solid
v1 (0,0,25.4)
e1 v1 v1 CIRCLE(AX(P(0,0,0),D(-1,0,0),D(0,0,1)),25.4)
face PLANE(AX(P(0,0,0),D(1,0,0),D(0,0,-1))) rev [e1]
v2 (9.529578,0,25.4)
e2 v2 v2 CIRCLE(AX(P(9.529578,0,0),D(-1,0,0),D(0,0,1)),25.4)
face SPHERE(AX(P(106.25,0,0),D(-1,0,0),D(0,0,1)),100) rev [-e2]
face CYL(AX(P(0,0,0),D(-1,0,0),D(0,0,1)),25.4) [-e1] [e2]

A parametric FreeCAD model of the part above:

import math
import FreeCAD as App
import Part
import Sketcher
Q = App.Units.Quantity

doc = App.newDocument("Part")
body = doc.addObject("PartDesign::Body", "Body")

sketch1 = doc.addObject("Sketcher::SketchObject", "Sketch")
body.addObject(sketch1)
sketch1.AttachmentSupport = (doc.XZ_Plane, [""])
sketch1.MapMode = "FlatFace"
sketch1.addGeometry([
    Part.LineSegment(App.Vector(0, 0, 0), App.Vector(6, 0, 0)),
    Part.ArcOfCircle(Part.Circle(App.Vector(106, 0, 0), App.Vector(0, 0, 1), 100), math.radians(180), math.radians(194.71)),
    Part.LineSegment(App.Vector(10, -25, 0), App.Vector(0, -25, 0)),
    Part.LineSegment(App.Vector(0, -25, 0), App.Vector(0, 0, 0)),
], False)
sketch1.addConstraint([
    Sketcher.Constraint("Coincident", 0, 2, 1, 1),
    Sketcher.Constraint("Coincident", 1, 2, 2, 1),
    Sketcher.Constraint("Coincident", 2, 2, 3, 1),
    Sketcher.Constraint("Coincident", 3, 2, 0, 1),
    Sketcher.Constraint("Horizontal", 0),
    Sketcher.Constraint("Horizontal", 2),
    Sketcher.Constraint("Vertical", 3),
    Sketcher.Constraint("Coincident", 3, 2, -1, 1),
    Sketcher.Constraint("PointOnObject", 1, 3, -1),
    Sketcher.Constraint("Radius", 1, Q("100 mm")),
    Sketcher.Constraint("DistanceY", 3, 1, 3, 2, Q("25.4 mm")),
    Sketcher.Constraint("DistanceX", 0, 1, 0, 2, Q("6.25 mm")),
])
revolution = doc.addObject("PartDesign::Revolution", "Revolution")
body.addObject(revolution)
revolution.Profile = sketch1
revolution.ReferenceAxis = (sketch1, ["H_Axis"])
revolution.Angle = 360

doc.recompute()
